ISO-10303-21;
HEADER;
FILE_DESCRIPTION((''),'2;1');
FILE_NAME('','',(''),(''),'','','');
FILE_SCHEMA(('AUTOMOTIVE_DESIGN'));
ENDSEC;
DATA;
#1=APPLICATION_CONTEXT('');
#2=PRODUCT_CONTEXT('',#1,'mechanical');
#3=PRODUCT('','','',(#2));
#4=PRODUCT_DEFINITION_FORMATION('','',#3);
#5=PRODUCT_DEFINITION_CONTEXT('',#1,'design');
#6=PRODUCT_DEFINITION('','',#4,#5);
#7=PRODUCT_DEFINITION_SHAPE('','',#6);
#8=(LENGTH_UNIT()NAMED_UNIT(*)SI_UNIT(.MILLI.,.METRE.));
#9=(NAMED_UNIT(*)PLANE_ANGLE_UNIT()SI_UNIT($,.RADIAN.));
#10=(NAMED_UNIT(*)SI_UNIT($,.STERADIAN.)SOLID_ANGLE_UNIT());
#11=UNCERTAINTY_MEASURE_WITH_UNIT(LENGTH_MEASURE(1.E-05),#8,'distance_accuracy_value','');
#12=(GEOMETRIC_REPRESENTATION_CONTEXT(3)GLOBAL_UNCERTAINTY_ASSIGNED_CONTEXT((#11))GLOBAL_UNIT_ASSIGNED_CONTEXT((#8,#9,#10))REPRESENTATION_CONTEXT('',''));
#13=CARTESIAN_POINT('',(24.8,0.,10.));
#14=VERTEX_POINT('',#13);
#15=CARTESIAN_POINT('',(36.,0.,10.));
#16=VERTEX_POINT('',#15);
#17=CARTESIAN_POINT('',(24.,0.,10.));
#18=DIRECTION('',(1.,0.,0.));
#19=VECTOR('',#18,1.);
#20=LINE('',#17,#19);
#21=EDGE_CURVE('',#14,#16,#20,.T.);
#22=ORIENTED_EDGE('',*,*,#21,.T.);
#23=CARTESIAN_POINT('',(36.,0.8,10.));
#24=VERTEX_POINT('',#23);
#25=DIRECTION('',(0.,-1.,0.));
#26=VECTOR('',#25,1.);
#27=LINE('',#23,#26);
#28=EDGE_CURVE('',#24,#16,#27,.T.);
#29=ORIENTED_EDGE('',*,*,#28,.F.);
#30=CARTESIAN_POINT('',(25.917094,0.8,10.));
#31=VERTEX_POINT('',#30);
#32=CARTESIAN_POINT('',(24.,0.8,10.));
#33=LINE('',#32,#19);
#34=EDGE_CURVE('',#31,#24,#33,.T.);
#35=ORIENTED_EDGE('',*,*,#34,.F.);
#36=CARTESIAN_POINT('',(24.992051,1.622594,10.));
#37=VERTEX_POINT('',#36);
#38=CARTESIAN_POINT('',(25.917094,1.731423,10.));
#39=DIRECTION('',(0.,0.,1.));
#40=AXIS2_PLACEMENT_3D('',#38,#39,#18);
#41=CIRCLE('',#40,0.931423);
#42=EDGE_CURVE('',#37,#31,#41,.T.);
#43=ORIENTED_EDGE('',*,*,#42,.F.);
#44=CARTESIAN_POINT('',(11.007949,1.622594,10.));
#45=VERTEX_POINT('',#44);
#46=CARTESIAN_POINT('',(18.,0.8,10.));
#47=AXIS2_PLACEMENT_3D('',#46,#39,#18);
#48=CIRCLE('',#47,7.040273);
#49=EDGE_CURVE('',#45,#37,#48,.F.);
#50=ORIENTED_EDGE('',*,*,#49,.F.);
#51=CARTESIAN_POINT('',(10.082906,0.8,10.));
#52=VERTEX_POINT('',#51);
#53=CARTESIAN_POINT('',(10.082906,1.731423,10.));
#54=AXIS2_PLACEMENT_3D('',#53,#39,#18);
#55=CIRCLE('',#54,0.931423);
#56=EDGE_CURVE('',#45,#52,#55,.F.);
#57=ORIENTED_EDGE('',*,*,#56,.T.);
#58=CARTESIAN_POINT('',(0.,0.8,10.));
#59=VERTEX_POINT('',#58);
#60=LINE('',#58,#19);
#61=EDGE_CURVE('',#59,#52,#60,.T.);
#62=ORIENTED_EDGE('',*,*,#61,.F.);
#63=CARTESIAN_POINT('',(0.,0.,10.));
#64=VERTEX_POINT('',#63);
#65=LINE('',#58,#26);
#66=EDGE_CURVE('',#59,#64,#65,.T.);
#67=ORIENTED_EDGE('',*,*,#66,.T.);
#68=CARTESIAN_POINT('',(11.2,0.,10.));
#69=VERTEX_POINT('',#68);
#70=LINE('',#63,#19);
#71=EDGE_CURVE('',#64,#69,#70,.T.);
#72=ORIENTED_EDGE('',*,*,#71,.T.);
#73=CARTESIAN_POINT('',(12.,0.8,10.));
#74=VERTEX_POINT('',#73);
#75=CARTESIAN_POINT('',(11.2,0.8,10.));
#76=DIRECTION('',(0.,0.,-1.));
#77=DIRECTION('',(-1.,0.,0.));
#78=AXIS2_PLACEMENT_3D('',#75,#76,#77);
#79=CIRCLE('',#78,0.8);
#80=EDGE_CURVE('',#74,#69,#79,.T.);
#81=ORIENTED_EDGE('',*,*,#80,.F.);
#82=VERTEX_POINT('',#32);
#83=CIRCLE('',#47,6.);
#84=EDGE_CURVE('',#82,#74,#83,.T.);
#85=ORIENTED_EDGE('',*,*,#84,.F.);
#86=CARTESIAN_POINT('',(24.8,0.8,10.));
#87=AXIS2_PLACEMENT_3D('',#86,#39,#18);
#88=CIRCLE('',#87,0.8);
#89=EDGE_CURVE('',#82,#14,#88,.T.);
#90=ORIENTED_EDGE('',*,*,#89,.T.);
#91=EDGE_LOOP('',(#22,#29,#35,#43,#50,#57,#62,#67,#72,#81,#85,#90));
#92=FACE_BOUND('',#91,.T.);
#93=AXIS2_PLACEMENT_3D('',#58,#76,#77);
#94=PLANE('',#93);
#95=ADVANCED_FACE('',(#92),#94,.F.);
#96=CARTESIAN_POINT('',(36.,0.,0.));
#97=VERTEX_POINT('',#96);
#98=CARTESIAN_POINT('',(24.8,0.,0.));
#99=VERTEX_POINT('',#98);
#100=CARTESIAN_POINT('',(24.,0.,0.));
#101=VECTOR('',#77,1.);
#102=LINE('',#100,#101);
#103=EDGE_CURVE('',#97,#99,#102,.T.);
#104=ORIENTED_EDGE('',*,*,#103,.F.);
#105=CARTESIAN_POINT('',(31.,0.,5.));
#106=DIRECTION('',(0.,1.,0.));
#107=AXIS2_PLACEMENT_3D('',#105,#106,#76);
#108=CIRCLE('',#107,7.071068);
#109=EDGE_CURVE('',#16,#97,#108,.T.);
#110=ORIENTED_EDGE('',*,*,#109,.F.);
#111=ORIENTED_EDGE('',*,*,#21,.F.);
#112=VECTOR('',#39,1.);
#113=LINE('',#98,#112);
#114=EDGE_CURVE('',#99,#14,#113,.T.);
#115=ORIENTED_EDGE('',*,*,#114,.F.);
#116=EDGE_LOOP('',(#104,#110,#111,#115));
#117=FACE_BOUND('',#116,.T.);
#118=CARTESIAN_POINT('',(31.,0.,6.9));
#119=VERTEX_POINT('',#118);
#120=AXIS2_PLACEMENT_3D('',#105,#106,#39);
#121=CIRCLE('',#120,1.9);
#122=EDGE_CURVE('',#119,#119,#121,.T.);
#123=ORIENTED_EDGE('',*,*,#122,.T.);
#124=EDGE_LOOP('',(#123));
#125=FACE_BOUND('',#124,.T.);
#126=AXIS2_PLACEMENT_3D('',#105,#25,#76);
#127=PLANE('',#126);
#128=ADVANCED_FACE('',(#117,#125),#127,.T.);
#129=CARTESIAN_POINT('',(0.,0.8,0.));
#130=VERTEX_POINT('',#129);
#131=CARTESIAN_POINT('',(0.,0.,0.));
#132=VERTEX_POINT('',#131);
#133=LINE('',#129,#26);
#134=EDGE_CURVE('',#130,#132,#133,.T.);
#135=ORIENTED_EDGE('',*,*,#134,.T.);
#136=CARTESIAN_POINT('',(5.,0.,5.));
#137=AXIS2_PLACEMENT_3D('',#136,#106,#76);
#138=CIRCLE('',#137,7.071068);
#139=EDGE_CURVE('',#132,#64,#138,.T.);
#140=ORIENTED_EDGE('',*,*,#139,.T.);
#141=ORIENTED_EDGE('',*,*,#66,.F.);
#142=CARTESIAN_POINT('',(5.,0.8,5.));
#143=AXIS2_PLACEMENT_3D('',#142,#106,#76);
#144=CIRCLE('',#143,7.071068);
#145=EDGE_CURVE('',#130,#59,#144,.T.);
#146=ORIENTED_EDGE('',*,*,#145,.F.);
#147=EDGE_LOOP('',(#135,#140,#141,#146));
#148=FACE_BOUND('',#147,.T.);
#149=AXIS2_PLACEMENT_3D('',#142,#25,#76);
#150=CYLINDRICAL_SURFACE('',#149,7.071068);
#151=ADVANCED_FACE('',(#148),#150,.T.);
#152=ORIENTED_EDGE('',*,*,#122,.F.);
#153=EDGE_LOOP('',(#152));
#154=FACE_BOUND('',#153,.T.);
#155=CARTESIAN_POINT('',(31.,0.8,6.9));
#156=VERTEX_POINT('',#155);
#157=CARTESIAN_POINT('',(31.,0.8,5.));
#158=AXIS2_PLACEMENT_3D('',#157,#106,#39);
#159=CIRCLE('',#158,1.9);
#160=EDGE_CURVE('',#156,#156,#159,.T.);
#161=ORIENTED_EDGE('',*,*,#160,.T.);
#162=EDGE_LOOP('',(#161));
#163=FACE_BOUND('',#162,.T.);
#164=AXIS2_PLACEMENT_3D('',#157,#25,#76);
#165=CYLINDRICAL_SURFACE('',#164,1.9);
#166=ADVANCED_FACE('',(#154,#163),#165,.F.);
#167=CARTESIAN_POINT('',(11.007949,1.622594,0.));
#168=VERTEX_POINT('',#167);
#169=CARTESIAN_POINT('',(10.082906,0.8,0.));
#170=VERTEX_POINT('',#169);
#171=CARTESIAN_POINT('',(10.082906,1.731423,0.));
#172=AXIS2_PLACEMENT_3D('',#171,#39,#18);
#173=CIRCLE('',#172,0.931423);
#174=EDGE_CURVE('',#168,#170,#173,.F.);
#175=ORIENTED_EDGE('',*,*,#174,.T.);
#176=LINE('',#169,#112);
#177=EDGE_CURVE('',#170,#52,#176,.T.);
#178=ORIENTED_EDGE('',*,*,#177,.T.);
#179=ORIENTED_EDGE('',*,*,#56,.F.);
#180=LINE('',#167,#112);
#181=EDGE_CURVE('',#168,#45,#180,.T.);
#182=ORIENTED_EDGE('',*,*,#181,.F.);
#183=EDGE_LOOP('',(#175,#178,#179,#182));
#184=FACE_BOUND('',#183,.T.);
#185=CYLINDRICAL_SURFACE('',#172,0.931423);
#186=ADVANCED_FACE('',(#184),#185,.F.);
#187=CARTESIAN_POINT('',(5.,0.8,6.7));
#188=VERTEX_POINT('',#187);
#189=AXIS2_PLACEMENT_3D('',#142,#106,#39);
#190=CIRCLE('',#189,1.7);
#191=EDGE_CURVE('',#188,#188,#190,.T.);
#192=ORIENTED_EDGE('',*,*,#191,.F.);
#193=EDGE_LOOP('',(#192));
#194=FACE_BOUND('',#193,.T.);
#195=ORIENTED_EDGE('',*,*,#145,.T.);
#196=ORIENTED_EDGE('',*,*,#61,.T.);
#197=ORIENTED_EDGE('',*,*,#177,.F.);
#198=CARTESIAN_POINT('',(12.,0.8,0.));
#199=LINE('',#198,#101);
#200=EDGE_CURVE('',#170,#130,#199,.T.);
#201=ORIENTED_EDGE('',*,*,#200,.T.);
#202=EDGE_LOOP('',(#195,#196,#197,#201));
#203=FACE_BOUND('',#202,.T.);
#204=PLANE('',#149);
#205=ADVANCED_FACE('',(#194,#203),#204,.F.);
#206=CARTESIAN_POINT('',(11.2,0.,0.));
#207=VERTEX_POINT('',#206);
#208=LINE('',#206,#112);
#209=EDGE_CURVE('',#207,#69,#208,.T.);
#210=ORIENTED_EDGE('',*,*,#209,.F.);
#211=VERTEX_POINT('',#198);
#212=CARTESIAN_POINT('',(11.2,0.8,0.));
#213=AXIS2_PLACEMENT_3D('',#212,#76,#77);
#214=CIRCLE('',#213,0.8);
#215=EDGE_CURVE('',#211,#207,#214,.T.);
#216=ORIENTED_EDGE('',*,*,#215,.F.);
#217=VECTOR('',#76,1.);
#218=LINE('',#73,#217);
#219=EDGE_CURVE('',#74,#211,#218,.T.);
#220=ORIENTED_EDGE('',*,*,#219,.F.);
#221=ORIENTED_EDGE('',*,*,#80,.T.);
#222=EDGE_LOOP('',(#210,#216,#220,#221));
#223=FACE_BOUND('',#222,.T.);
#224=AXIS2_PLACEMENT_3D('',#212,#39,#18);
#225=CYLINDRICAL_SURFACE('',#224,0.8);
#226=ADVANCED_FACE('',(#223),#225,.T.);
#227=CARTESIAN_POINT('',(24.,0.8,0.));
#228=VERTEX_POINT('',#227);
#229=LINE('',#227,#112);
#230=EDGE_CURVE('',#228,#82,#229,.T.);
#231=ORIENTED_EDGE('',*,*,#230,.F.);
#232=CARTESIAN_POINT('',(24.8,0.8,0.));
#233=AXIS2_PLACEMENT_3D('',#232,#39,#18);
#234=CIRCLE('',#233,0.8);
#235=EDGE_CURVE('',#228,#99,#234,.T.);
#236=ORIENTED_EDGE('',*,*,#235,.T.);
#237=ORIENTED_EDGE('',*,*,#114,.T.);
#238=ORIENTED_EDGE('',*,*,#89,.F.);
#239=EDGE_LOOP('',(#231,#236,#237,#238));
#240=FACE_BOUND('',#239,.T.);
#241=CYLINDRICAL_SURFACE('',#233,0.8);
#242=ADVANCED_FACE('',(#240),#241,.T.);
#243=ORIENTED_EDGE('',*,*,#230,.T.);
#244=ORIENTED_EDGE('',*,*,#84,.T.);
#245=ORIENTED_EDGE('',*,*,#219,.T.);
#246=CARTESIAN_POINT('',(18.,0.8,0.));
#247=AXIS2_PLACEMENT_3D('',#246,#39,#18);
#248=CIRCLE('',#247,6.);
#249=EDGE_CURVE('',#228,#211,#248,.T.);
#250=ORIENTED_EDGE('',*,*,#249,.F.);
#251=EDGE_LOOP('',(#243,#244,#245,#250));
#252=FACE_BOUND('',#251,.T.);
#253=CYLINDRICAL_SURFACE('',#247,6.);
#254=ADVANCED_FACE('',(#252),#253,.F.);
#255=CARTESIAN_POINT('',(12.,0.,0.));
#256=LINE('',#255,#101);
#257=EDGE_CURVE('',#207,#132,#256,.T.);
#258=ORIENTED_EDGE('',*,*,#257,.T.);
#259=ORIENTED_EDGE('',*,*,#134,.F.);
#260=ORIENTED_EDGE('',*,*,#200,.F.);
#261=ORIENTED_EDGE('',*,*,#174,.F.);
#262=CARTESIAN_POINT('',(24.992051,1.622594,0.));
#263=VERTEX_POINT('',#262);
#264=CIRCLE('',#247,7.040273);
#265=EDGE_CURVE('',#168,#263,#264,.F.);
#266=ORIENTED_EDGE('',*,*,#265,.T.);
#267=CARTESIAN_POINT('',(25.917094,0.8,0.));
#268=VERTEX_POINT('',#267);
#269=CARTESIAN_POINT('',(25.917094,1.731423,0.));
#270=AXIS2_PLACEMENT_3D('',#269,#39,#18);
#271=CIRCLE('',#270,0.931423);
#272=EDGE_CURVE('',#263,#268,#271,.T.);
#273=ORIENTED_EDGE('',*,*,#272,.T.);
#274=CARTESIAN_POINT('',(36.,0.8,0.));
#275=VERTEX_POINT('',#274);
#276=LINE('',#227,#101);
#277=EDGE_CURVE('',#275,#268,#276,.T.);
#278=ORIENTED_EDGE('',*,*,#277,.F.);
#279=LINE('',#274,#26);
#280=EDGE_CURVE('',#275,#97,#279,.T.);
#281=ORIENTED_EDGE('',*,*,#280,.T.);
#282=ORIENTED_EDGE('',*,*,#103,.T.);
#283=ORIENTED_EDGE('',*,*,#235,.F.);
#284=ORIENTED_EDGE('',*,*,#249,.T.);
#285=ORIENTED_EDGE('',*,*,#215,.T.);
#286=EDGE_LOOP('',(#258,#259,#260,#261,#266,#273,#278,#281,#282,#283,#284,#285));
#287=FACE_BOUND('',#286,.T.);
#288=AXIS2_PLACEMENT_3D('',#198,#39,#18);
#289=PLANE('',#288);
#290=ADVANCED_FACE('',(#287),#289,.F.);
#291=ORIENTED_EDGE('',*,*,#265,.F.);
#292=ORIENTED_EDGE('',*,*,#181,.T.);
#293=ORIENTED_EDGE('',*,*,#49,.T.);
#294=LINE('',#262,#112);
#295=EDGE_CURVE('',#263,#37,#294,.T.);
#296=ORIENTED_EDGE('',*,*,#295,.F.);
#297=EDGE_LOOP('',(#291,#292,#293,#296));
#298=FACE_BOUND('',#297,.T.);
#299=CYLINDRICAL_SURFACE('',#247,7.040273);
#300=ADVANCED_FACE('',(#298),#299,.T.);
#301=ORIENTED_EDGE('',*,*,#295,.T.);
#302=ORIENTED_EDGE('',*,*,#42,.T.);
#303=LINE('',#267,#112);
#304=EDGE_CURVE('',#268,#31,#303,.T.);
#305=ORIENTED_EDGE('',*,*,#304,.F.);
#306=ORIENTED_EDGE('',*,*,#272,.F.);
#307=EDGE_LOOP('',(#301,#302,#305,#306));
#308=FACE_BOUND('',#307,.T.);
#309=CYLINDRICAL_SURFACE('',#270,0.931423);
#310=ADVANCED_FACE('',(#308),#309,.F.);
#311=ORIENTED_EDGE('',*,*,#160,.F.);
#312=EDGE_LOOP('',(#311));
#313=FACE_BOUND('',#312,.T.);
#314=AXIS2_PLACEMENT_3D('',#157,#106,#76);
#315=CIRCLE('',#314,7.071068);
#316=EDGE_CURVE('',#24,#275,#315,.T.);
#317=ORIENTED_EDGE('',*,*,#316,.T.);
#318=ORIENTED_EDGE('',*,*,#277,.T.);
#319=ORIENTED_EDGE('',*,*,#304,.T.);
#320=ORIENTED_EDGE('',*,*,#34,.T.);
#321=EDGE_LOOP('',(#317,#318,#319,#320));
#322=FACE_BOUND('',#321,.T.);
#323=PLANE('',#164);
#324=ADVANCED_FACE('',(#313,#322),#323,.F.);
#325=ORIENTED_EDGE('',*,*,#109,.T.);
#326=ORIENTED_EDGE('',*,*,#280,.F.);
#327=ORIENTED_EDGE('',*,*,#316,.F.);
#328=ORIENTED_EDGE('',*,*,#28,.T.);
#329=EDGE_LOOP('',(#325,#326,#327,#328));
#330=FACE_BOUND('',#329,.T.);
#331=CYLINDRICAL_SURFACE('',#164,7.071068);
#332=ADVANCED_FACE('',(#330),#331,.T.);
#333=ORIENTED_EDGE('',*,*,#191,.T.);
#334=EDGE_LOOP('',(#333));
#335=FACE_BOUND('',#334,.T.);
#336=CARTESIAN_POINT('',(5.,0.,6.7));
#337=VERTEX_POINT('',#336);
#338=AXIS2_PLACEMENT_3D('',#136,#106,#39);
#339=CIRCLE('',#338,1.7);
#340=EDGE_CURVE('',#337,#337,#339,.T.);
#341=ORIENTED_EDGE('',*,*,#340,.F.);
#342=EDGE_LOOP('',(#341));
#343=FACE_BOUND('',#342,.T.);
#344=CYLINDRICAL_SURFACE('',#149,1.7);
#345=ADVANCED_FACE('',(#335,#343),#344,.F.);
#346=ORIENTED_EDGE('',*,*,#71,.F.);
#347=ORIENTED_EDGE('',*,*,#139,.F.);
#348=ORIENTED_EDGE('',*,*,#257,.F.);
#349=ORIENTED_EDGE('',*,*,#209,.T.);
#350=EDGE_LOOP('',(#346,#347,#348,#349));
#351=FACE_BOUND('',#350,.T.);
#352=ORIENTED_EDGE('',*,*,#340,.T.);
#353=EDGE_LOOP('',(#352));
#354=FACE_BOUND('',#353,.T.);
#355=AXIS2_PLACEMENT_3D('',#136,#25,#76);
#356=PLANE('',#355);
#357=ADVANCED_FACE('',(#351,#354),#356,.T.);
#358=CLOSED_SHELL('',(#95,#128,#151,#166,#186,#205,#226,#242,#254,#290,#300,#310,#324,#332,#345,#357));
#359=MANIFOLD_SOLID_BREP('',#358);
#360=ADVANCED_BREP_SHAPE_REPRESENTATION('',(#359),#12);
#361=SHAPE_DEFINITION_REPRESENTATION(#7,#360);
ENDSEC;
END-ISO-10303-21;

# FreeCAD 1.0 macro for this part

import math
import FreeCAD as App
import Part
import Sketcher
from FreeCAD import Vector
Q = App.Units.Quantity

doc = App.newDocument("Part")
body = doc.addObject("PartDesign::Body", "Body")

# Sketch on XZ plane
sketch1 = body.newObject("Sketcher::SketchObject", "Sketch")
sketch1.AttachmentSupport = (doc.getObject("XZ_Plane"), [""])
sketch1.MapMode = "FlatFace"
sketch1.addGeometry([
    Part.LineSegment(Vector(0, 10, 0), Vector(12, 10, 0)),  # 0
    Part.LineSegment(Vector(12, 10, 0), Vector(12, 0, 0)),  # 1
    Part.LineSegment(Vector(12, 0, 0), Vector(0, 0, 0)),  # 2
    Part.ArcOfCircle(Part.Circle(Vector(5, 5, 0), Vector(0, 0, 1), 7.1), math.radians(135), math.radians(225)),  # 3
    Part.Circle(Vector(5, 5, 0), Vector(0, 0, 1), 1.7),  # 4
], False)
sketch1.addConstraint([
    Sketcher.Constraint("Coincident", 0, 2, 1, 1),
    Sketcher.Constraint("Coincident", 1, 2, 2, 1),
    Sketcher.Constraint("Coincident", 2, 2, 3, 2),
    Sketcher.Constraint("Coincident", 3, 1, 0, 1),
    Sketcher.Constraint("Horizontal", 0),
    Sketcher.Constraint("Vertical", 1),
    Sketcher.Constraint("Horizontal", 2),
    Sketcher.Constraint("Coincident", 2, 2, -1, 1),
    Sketcher.Constraint("Coincident", 4, 3, 3, 3),
    Sketcher.Constraint("PointOnObject", 3, 1, -2),
    Sketcher.Constraint("Diameter", 4, Q("3.4 mm")),
    Sketcher.Constraint("DistanceX", 0, 1, 0, 2, Q("12 mm")),
    Sketcher.Constraint("DistanceY", 1, 2, 1, 1, Q("10 mm")),
    Sketcher.Constraint("DistanceX", -1, 1, 3, 3, Q("5 mm")),
])
pad1 = body.newObject("PartDesign::Pad", "Pad")
pad1.Profile = sketch1
pad1.Length = 0.8
pad1.Reversed = True
body2 = doc.addObject("PartDesign::Body", "Body001")

# Sketch on XZ plane
sketch2 = body2.newObject("Sketcher::SketchObject", "Sketch001")
sketch2.AttachmentSupport = (doc.getObject("XZ_Plane001"), [""])
sketch2.MapMode = "FlatFace"
sketch2.addGeometry([
    Part.LineSegment(Vector(24, 0, 0), Vector(24, 10, 0)),  # 0
    Part.LineSegment(Vector(24, 10, 0), Vector(36, 10, 0)),  # 1
    Part.ArcOfCircle(Part.Circle(Vector(31, 5, 0), Vector(0, 0, 1), 7.1), math.radians(-45), math.radians(45)),  # 2
    Part.LineSegment(Vector(36, 0, 0), Vector(24, 0, 0)),  # 3
    Part.Circle(Vector(31, 5, 0), Vector(0, 0, 1), 1.9),  # 4
], False)
sketch2.addConstraint([
    Sketcher.Constraint("Coincident", 0, 2, 1, 1),
    Sketcher.Constraint("Coincident", 1, 2, 2, 2),
    Sketcher.Constraint("Coincident", 2, 1, 3, 1),
    Sketcher.Constraint("Coincident", 3, 2, 0, 1),
    Sketcher.Constraint("Vertical", 0),
    Sketcher.Constraint("Horizontal", 1),
    Sketcher.Constraint("Horizontal", 3),
    Sketcher.Constraint("Coincident", 4, 3, 2, 3),
    Sketcher.Constraint("PointOnObject", 2, 1, -1),
    Sketcher.Constraint("Vertical", 1, 2, 2, 1),
    Sketcher.Constraint("Diameter", 4, Q("3.8 mm")),
    Sketcher.Constraint("DistanceX", 1, 1, 1, 2, Q("12 mm")),
    Sketcher.Constraint("DistanceY", 0, 1, 0, 2, Q("10 mm")),
    Sketcher.Constraint("DistanceX", -1, 1, 2, 3, Q("31 mm")),
    Sketcher.Constraint("DistanceX", -1, 1, 0, 2, Q("24 mm")),
])
pad2 = body2.newObject("PartDesign::Pad", "Pad001")
pad2.Profile = sketch2
pad2.Length = 0.8
pad2.Reversed = True
body.AllowCompound = True
doc.recompute()

boolean = body.newObject("PartDesign::Boolean", "Boolean")
boolean.Type = "Fuse"
boolean.addObjects([body2])

# Sketch on XY plane
sketch3 = body.newObject("Sketcher::SketchObject", "Sketch002")
sketch3.AttachmentSupport = (doc.getObject("XY_Plane"), [""])
sketch3.MapMode = "FlatFace"
sketch3.AttachmentOffset = App.Placement(Vector(0, 0, 10), App.Rotation())
sketch3.addGeometry([
    Part.ArcOfCircle(Part.Circle(Vector(10.1, 1.7, 0), Vector(0, 0, 1), 0.9), math.radians(-90), math.radians(-7)),  # 0
    Part.LineSegment(Vector(10.1, 0.8, 0), Vector(12, 0.8, 0)),  # 1
    Part.ArcOfCircle(Part.Circle(Vector(18, 0.8, 0), Vector(0, 0, 1), 6), math.radians(0), math.radians(180)),  # 2
    Part.LineSegment(Vector(24, 0.8, 0), Vector(25.9, 0.8, 0)),  # 3
    Part.ArcOfCircle(Part.Circle(Vector(25.9, 1.7, 0), Vector(0, 0, 1), 0.9), math.radians(-173), math.radians(-90)),  # 4
    Part.ArcOfCircle(Part.Circle(Vector(18, 0.8, 0), Vector(0, 0, 1), 7), math.radians(7), math.radians(173)),  # 5
], False)
sketch3.addConstraint([
    Sketcher.Constraint("Tangent", 0, 1, 1, 1),
    Sketcher.Constraint("Coincident", 1, 2, 2, 2),
    Sketcher.Constraint("Coincident", 2, 1, 3, 1),
    Sketcher.Constraint("Tangent", 3, 2, 4, 2),
    Sketcher.Constraint("Tangent", 4, 1, 5, 1),
    Sketcher.Constraint("Tangent", 5, 2, 0, 2),
    Sketcher.Constraint("Horizontal", 1),
    Sketcher.Constraint("Horizontal", 3),
    Sketcher.Constraint("Coincident", 5, 3, 2, 3),
    Sketcher.Constraint("Equal", 0, 4),
    Sketcher.Constraint("Horizontal", 0, 3, 4, 3),
    Sketcher.Constraint("Horizontal", 5, 3, 0, 1),
    Sketcher.Constraint("Radius", 2, Q("6 mm")),
    Sketcher.Constraint("DistanceX", -1, 1, 2, 3, Q("18 mm")),
    Sketcher.Constraint("DistanceY", -1, 1, 2, 3, Q("0.8 mm")),
    Sketcher.Constraint("Radius", 0, Q("0.931423 mm")),
    Sketcher.Constraint("Radius", 5, Q("7.040273 mm")),
])
pad3 = body.newObject("PartDesign::Pad", "Pad002")
pad3.Profile = sketch3
pad3.Length = 10
pad3.Reversed = True

# Sketch on XY plane
sketch4 = body.newObject("Sketcher::SketchObject", "Sketch003")
sketch4.AttachmentSupport = (doc.getObject("XY_Plane"), [""])
sketch4.MapMode = "FlatFace"
sketch4.AttachmentOffset = App.Placement(Vector(0, 0, 10), App.Rotation())
sketch4.addGeometry([
    Part.LineSegment(Vector(11.2, 0, 0), Vector(12, 0, 0)),
    Part.LineSegment(Vector(12, 0, 0), Vector(12, 0.8, 0)),
    Part.ArcOfCircle(Part.Circle(Vector(11.2, 0.8, 0), Vector(0, 0, 1), 0.8), math.radians(-90), math.radians(0)),
], False)
sketch4.addConstraint([
    Sketcher.Constraint("Coincident", 0, 2, 1, 1),
    Sketcher.Constraint("Tangent", 1, 2, 2, 2),
    Sketcher.Constraint("Tangent", 2, 1, 0, 1),
    Sketcher.Constraint("Horizontal", 0),
    Sketcher.Constraint("Vertical", 1),
    Sketcher.Constraint("PointOnObject", 0, 2, -1),
    Sketcher.Constraint("Radius", 2, Q("0.8 mm")),
    Sketcher.Constraint("DistanceX", -1, 1, 0, 2, Q("12 mm")),
])
pocket1 = body.newObject("PartDesign::Pocket", "Pocket")
pocket1.Profile = sketch4
pocket1.Length = 10

# Sketch on XY plane
sketch5 = body.newObject("Sketcher::SketchObject", "Sketch004")
sketch5.AttachmentSupport = (doc.getObject("XY_Plane"), [""])
sketch5.MapMode = "FlatFace"
sketch5.AttachmentOffset = App.Placement(Vector(0, 0, 10), App.Rotation())
sketch5.addGeometry([
    Part.LineSegment(Vector(24, 0.8, 0), Vector(24, 0, 0)),
    Part.LineSegment(Vector(24, 0, 0), Vector(24.8, 0, 0)),
    Part.ArcOfCircle(Part.Circle(Vector(24.8, 0.8, 0), Vector(0, 0, 1), 0.8), math.radians(180), math.radians(270)),
], False)
sketch5.addConstraint([
    Sketcher.Constraint("Coincident", 0, 2, 1, 1),
    Sketcher.Constraint("Tangent", 1, 2, 2, 2),
    Sketcher.Constraint("Tangent", 2, 1, 0, 1),
    Sketcher.Constraint("Vertical", 0),
    Sketcher.Constraint("Horizontal", 1),
    Sketcher.Constraint("PointOnObject", 0, 2, -1),
    Sketcher.Constraint("Radius", 2, Q("0.8 mm")),
    Sketcher.Constraint("DistanceX", -1, 1, 0, 2, Q("24 mm")),
])
pocket2 = body.newObject("PartDesign::Pocket", "Pocket001")
pocket2.Profile = sketch5
pocket2.Length = 10

doc.recompute()
